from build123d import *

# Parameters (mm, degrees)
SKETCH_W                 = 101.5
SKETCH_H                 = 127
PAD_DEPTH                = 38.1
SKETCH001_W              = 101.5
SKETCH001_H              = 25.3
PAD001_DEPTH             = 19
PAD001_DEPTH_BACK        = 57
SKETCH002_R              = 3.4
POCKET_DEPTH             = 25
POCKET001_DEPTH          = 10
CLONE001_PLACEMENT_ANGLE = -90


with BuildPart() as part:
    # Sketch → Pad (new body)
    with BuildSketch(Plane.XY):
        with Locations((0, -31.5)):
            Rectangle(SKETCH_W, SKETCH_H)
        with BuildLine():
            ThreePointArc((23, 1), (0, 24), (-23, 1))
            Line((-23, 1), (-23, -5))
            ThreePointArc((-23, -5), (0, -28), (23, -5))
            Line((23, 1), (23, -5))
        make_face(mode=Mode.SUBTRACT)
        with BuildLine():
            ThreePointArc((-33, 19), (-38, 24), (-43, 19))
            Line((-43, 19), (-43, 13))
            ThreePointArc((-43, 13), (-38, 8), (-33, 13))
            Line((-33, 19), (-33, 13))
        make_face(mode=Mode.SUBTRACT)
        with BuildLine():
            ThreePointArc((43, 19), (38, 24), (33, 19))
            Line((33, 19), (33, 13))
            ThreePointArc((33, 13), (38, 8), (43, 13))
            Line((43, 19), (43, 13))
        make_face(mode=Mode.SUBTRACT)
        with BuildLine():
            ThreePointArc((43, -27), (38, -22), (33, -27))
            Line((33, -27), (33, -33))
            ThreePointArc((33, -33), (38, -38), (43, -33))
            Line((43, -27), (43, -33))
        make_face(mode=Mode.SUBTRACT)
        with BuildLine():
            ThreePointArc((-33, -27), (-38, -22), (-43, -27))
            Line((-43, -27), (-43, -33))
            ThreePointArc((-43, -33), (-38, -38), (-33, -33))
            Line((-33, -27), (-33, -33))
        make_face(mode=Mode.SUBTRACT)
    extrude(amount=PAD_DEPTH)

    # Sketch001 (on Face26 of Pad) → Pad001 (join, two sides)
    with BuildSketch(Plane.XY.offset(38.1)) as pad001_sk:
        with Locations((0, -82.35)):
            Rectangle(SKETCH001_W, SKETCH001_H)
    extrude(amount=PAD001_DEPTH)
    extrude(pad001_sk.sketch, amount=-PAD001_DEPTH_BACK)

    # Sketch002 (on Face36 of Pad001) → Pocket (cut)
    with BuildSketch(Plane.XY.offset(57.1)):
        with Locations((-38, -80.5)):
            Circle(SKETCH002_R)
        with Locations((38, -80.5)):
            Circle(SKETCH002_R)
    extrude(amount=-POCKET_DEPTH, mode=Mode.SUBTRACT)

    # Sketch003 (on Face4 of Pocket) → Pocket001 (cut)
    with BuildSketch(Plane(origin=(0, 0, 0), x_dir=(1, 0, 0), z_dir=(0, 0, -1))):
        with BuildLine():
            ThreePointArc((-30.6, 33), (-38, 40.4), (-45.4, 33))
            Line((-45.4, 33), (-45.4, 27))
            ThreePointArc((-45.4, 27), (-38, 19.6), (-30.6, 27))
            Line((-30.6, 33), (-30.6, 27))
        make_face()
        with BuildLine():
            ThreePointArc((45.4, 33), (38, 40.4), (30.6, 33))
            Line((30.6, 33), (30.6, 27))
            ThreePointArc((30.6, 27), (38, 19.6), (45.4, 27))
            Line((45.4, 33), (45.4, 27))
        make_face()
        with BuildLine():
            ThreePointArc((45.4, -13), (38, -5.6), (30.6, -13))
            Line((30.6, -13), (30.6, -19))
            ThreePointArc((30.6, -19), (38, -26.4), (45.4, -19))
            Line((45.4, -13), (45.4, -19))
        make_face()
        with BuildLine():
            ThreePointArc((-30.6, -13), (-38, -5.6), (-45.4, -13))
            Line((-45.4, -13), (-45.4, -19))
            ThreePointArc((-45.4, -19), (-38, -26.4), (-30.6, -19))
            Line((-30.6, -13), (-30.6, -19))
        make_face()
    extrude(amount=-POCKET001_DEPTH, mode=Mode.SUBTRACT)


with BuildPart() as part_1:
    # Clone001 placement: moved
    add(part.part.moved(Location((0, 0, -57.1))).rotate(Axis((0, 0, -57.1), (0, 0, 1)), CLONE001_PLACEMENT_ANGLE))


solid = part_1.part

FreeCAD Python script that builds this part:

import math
import FreeCAD as App
import Part
import Sketcher
Q = App.Units.Quantity

doc = App.newDocument("Part")
body = doc.addObject("PartDesign::Body", "Body")

sketch1 = doc.addObject("Sketcher::SketchObject", "Sketch")
body.addObject(sketch1)
sketch1.AttachmentSupport = (doc.XY_Plane, [""])
sketch1.MapMode = "FlatFace"
sketch1.addGeometry([
    Part.LineSegment(App.Vector(-51, 32, 0), App.Vector(-51, -95, 0)),
    Part.LineSegment(App.Vector(-51, -95, 0), App.Vector(51, -95, 0)),
    Part.LineSegment(App.Vector(51, -95, 0), App.Vector(51, 32, 0)),
    Part.LineSegment(App.Vector(51, 32, 0), App.Vector(-51, 32, 0)),
    Part.ArcOfCircle(Part.Circle(App.Vector(-38, -27, 0), App.Vector(0, 0, 1), 5), math.radians(0), math.radians(180)),
    Part.LineSegment(App.Vector(-33, -27, 0), App.Vector(-33, -33, 0)),
    Part.ArcOfCircle(Part.Circle(App.Vector(-38, -33, 0), App.Vector(0, 0, 1), 5), math.radians(180), math.radians(360)),
    Part.LineSegment(App.Vector(-43, -33, 0), App.Vector(-43, -27, 0)),
    Part.ArcOfCircle(Part.Circle(App.Vector(38, -27, 0), App.Vector(0, 0, 1), 5), math.radians(0), math.radians(180)),
    Part.LineSegment(App.Vector(43, -27, 0), App.Vector(43, -33, 0)),
    Part.ArcOfCircle(Part.Circle(App.Vector(38, -33, 0), App.Vector(0, 0, 1), 5), math.radians(180), math.radians(360)),
    Part.LineSegment(App.Vector(33, -33, 0), App.Vector(33, -27, 0)),
    Part.ArcOfCircle(Part.Circle(App.Vector(-38, 19, 0), App.Vector(0, 0, 1), 5), math.radians(0), math.radians(180)),
    Part.LineSegment(App.Vector(-33, 19, 0), App.Vector(-33, 13, 0)),
    Part.ArcOfCircle(Part.Circle(App.Vector(-38, 13, 0), App.Vector(0, 0, 1), 5), math.radians(180), math.radians(360)),
    Part.LineSegment(App.Vector(-43, 13, 0), App.Vector(-43, 19, 0)),
    Part.ArcOfCircle(Part.Circle(App.Vector(0, 1, 0), App.Vector(0, 0, 1), 23), math.radians(0), math.radians(180)),
    Part.LineSegment(App.Vector(23, 1, 0), App.Vector(23, -5, 0)),
    Part.ArcOfCircle(Part.Circle(App.Vector(0, -5, 0), App.Vector(0, 0, 1), 23), math.radians(180), math.radians(360)),
    Part.LineSegment(App.Vector(-23, -5, 0), App.Vector(-23, 1, 0)),
    Part.ArcOfCircle(Part.Circle(App.Vector(38, 19, 0), App.Vector(0, 0, 1), 5), math.radians(0), math.radians(180)),
    Part.LineSegment(App.Vector(43, 19, 0), App.Vector(43, 13, 0)),
    Part.ArcOfCircle(Part.Circle(App.Vector(38, 13, 0), App.Vector(0, 0, 1), 5), math.radians(180), math.radians(360)),
    Part.LineSegment(App.Vector(33, 13, 0), App.Vector(33, 19, 0)),
], False)
sketch1.addConstraint([
    Sketcher.Constraint("Coincident", 0, 2, 1, 1),
    Sketcher.Constraint("Coincident", 1, 2, 2, 1),
    Sketcher.Constraint("Coincident", 2, 2, 3, 1),
    Sketcher.Constraint("Coincident", 3, 2, 0, 1),
    Sketcher.Constraint("Tangent", 4, 1, 5, 1),
    Sketcher.Constraint("Tangent", 5, 2, 6, 2),
    Sketcher.Constraint("Tangent", 6, 1, 7, 1),
    Sketcher.Constraint("Tangent", 7, 2, 4, 2),
    Sketcher.Constraint("Tangent", 8, 1, 9, 1),
    Sketcher.Constraint("Tangent", 9, 2, 10, 2),
    Sketcher.Constraint("Tangent", 10, 1, 11, 1),
    Sketcher.Constraint("Tangent", 11, 2, 8, 2),
    Sketcher.Constraint("Tangent", 12, 1, 13, 1),
    Sketcher.Constraint("Tangent", 13, 2, 14, 2),
    Sketcher.Constraint("Tangent", 14, 1, 15, 1),
    Sketcher.Constraint("Tangent", 15, 2, 12, 2),
    Sketcher.Constraint("Tangent", 16, 1, 17, 1),
    Sketcher.Constraint("Tangent", 17, 2, 18, 2),
    Sketcher.Constraint("Tangent", 18, 1, 19, 1),
    Sketcher.Constraint("Tangent", 19, 2, 16, 2),
    Sketcher.Constraint("Tangent", 20, 1, 21, 1),
    Sketcher.Constraint("Tangent", 21, 2, 22, 2),
    Sketcher.Constraint("Tangent", 22, 1, 23, 1),
    Sketcher.Constraint("Tangent", 23, 2, 20, 2),
    Sketcher.Constraint("Vertical", 0),
    Sketcher.Constraint("Horizontal", 1),
    Sketcher.Constraint("Vertical", 2),
    Sketcher.Constraint("Horizontal", 3),
    Sketcher.Constraint("Vertical", 5),
    Sketcher.Constraint("Vertical", 7),
    Sketcher.Constraint("Vertical", 9),
    Sketcher.Constraint("Vertical", 11),
    Sketcher.Constraint("Vertical", 13),
    Sketcher.Constraint("Vertical", 15),
    Sketcher.Constraint("Vertical", 17),
    Sketcher.Constraint("Vertical", 19),
    Sketcher.Constraint("Vertical", 21),
    Sketcher.Constraint("Vertical", 23),
    Sketcher.Constraint("Equal", 6, 8),
    Sketcher.Constraint("Equal", 10, 12),
    Sketcher.Constraint("Equal", 14, 20),
    Sketcher.Constraint("Symmetric", 4, 3, 8, 3, -2),
    Sketcher.Constraint("Symmetric", 12, 3, 20, 3, -2),
    Sketcher.Constraint("PointOnObject", 16, 3, -2),
    Sketcher.Constraint("Horizontal", 6, 3, 10, 3),
    Sketcher.Constraint("Horizontal", 14, 3, 22, 3),
    Sketcher.Constraint("Vertical", 6, 3, 12, 3),
    Sketcher.Constraint("Equal", 11, 13),
    Sketcher.Constraint("Equal", 15, 17),
    Sketcher.Constraint("Radius", 4, Q("5 mm")),
    Sketcher.Constraint("Radius", 16, Q("23 mm")),
    Sketcher.Constraint("DistanceY", 0, 2, 0, 1, Q("127 mm")),
    Sketcher.Constraint("DistanceY", 5, 2, 5, 1, Q("6 mm")),
    Sketcher.Constraint("DistanceX", 1, 1, 1, 2, Q("101.5 mm")),
    Sketcher.Constraint("DistanceX", 4, 3, -1, 1, Q("38 mm")),
    Sketcher.Constraint("DistanceY", 4, 3, -1, 1, Q("27 mm")),
    Sketcher.Constraint("DistanceY", -1, 1, 12, 3, Q("19 mm")),
    Sketcher.Constraint("DistanceY", -1, 1, 16, 3, Q("1 mm")),
    Sketcher.Constraint("DistanceY", 0, 2, -1, 1, Q("95 mm")),
    Sketcher.Constraint("DistanceX", 0, 2, -1, 1, Q("50.75 mm")),
])
pad1 = doc.addObject("PartDesign::Pad", "Pad")
body.addObject(pad1)
pad1.Profile = sketch1
pad1.Length = 38.1

sketch2 = doc.addObject("Sketcher::SketchObject", "Sketch001")
body.addObject(sketch2)
sketch2.AttachmentSupport = (doc.XY_Plane, [""])
sketch2.MapMode = "FlatFace"
sketch2.AttachmentOffset = App.Placement(App.Vector(0, 0, 38.1), App.Rotation())
sketch2.addGeometry([
    Part.LineSegment(App.Vector(-51, -70, 0), App.Vector(-51, -95, 0)),
    Part.LineSegment(App.Vector(-51, -95, 0), App.Vector(51, -95, 0)),
    Part.LineSegment(App.Vector(51, -95, 0), App.Vector(51, -70, 0)),
    Part.LineSegment(App.Vector(51, -70, 0), App.Vector(-51, -70, 0)),
], False)
sketch2.addConstraint([
    Sketcher.Constraint("Coincident", 0, 2, 1, 1),
    Sketcher.Constraint("Coincident", 1, 2, 2, 1),
    Sketcher.Constraint("Coincident", 2, 2, 3, 1),
    Sketcher.Constraint("Coincident", 3, 2, 0, 1),
    Sketcher.Constraint("Vertical", 0),
    Sketcher.Constraint("Horizontal", 1),
    Sketcher.Constraint("Vertical", 2),
    Sketcher.Constraint("Horizontal", 3),
    Sketcher.Constraint("DistanceX", 1, 1, 1, 2, Q("101.5 mm")),
    Sketcher.Constraint("DistanceY", 0, 2, 0, 1, Q("25.3 mm")),
    Sketcher.Constraint("DistanceY", 0, 2, -1, 1, Q("95 mm")),
    Sketcher.Constraint("DistanceX", 0, 2, -1, 1, Q("50.75 mm")),
])
pad2 = doc.addObject("PartDesign::Pad", "Pad001")
body.addObject(pad2)
pad2.Profile = sketch2
pad2.Type = "TwoLengths"
pad2.Length = 19
pad2.Length2 = 57

sketch3 = doc.addObject("Sketcher::SketchObject", "Sketch002")
body.addObject(sketch3)
sketch3.AttachmentSupport = (doc.XY_Plane, [""])
sketch3.MapMode = "FlatFace"
sketch3.AttachmentOffset = App.Placement(App.Vector(0, 0, 57.1), App.Rotation())
sketch3.addGeometry([
    Part.Circle(App.Vector(-38, -80.5, 0), App.Vector(0, 0, 1), 3.4),
    Part.Circle(App.Vector(38, -80.5, 0), App.Vector(0, 0, 1), 3.4),
], False)
sketch3.addConstraint([
    Sketcher.Constraint("Equal", 0, 1),
    Sketcher.Constraint("Symmetric", 0, 3, 1, 3, -2),
    Sketcher.Constraint("Diameter", 0, Q("6.8 mm")),
    Sketcher.Constraint("DistanceX", 0, 3, -1, 1, Q("38 mm")),
    Sketcher.Constraint("DistanceY", 0, 3, -1, 1, Q("80.5 mm")),
])
pocket1 = doc.addObject("PartDesign::Pocket", "Pocket")
body.addObject(pocket1)
pocket1.Profile = sketch3
pocket1.Length = 25

sketch4 = doc.addObject("Sketcher::SketchObject", "Sketch003")
body.addObject(sketch4)
sketch4.AttachmentSupport = (doc.XY_Plane, [""])
sketch4.MapMode = "FlatFace"
sketch4.addGeometry([
    Part.ArcOfCircle(Part.Circle(App.Vector(-38, -33, 0), App.Vector(0, 0, 1), 7), math.radians(180), math.radians(360)),
    Part.LineSegment(App.Vector(-45, -33, 0), App.Vector(-45, -27, 0)),
    Part.ArcOfCircle(Part.Circle(App.Vector(-38, -27, 0), App.Vector(0, 0, 1), 7), math.radians(0), math.radians(180)),
    Part.LineSegment(App.Vector(-31, -27, 0), App.Vector(-31, -33, 0)),
    Part.ArcOfCircle(Part.Circle(App.Vector(38, -33, 0), App.Vector(0, 0, 1), 7), math.radians(180), math.radians(360)),
    Part.LineSegment(App.Vector(31, -33, 0), App.Vector(31, -27, 0)),
    Part.ArcOfCircle(Part.Circle(App.Vector(38, -27, 0), App.Vector(0, 0, 1), 7), math.radians(0), math.radians(180)),
    Part.LineSegment(App.Vector(45, -27, 0), App.Vector(45, -33, 0)),
    Part.ArcOfCircle(Part.Circle(App.Vector(38, 13, 0), App.Vector(0, 0, 1), 7), math.radians(180), math.radians(360)),
    Part.LineSegment(App.Vector(31, 13, 0), App.Vector(31, 19, 0)),
    Part.ArcOfCircle(Part.Circle(App.Vector(38, 19, 0), App.Vector(0, 0, 1), 7), math.radians(0), math.radians(180)),
    Part.LineSegment(App.Vector(45, 19, 0), App.Vector(45, 13, 0)),
    Part.ArcOfCircle(Part.Circle(App.Vector(-38, 13, 0), App.Vector(0, 0, 1), 7), math.radians(180), math.radians(360)),
    Part.LineSegment(App.Vector(-45, 13, 0), App.Vector(-45, 19, 0)),
    Part.ArcOfCircle(Part.Circle(App.Vector(-38, 19, 0), App.Vector(0, 0, 1), 7), math.radians(0), math.radians(180)),
    Part.LineSegment(App.Vector(-31, 19, 0), App.Vector(-31, 13, 0)),
], False)
sketch4.addConstraint([
    Sketcher.Constraint("Tangent", 0, 1, 1, 1),
    Sketcher.Constraint("Tangent", 1, 2, 2, 2),
    Sketcher.Constraint("Tangent", 2, 1, 3, 1),
    Sketcher.Constraint("Tangent", 3, 2, 0, 2),
    Sketcher.Constraint("Tangent", 4, 1, 5, 1),
    Sketcher.Constraint("Tangent", 5, 2, 6, 2),
    Sketcher.Constraint("Tangent", 6, 1, 7, 1),
    Sketcher.Constraint("Tangent", 7, 2, 4, 2),
    Sketcher.Constraint("Tangent", 8, 1, 9, 1),
    Sketcher.Constraint("Tangent", 9, 2, 10, 2),
    Sketcher.Constraint("Tangent", 10, 1, 11, 1),
    Sketcher.Constraint("Tangent", 11, 2, 8, 2),
    Sketcher.Constraint("Tangent", 12, 1, 13, 1),
    Sketcher.Constraint("Tangent", 13, 2, 14, 2),
    Sketcher.Constraint("Tangent", 14, 1, 15, 1),
    Sketcher.Constraint("Tangent", 15, 2, 12, 2),
    Sketcher.Constraint("Vertical", 1),
    Sketcher.Constraint("Vertical", 3),
    Sketcher.Constraint("Vertical", 5),
    Sketcher.Constraint("Vertical", 7),
    Sketcher.Constraint("Vertical", 9),
    Sketcher.Constraint("Vertical", 11),
    Sketcher.Constraint("Vertical", 13),
    Sketcher.Constraint("Vertical", 15),
    Sketcher.Constraint("Equal", 2, 4),
    Sketcher.Constraint("Equal", 6, 8),
    Sketcher.Constraint("Equal", 10, 12),
    Sketcher.Constraint("Symmetric", 0, 3, 4, 3, -2),
    Sketcher.Constraint("Symmetric", 8, 3, 12, 3, -2),
    Sketcher.Constraint("Horizontal", 2, 3, 6, 3),
    Sketcher.Constraint("Horizontal", 10, 3, 14, 3),
    Sketcher.Constraint("Vertical", 6, 3, 8, 3),
    Sketcher.Constraint("Equal", 7, 9),
    Sketcher.Constraint("Radius", 0, Q("7.4 mm")),
    Sketcher.Constraint("DistanceY", 1, 1, 1, 2, Q("6 mm")),
    Sketcher.Constraint("DistanceX", 0, 3, -1, 1, Q("38 mm")),
    Sketcher.Constraint("DistanceY", 0, 3, -1, 1, Q("33 mm")),
    Sketcher.Constraint("DistanceY", -1, 1, 8, 3, Q("13 mm")),
])
pocket2 = doc.addObject("PartDesign::Pocket", "Pocket001")
body.addObject(pocket2)
pocket2.Profile = sketch4
pocket2.Length = 10
pocket2.Reversed = True
body2 = doc.addObject("PartDesign::Body", "Body001")
doc.recompute()

body.Placement = App.Placement(App.Vector(0, 0, -57.1), App.Rotation(App.Vector(0, 0, 1), 270))
boolean = doc.addObject("PartDesign::Boolean", "Boolean")
body2.addObject(boolean)
boolean.Type = "Fuse"
boolean.addObjects([body])

doc.recompute()
